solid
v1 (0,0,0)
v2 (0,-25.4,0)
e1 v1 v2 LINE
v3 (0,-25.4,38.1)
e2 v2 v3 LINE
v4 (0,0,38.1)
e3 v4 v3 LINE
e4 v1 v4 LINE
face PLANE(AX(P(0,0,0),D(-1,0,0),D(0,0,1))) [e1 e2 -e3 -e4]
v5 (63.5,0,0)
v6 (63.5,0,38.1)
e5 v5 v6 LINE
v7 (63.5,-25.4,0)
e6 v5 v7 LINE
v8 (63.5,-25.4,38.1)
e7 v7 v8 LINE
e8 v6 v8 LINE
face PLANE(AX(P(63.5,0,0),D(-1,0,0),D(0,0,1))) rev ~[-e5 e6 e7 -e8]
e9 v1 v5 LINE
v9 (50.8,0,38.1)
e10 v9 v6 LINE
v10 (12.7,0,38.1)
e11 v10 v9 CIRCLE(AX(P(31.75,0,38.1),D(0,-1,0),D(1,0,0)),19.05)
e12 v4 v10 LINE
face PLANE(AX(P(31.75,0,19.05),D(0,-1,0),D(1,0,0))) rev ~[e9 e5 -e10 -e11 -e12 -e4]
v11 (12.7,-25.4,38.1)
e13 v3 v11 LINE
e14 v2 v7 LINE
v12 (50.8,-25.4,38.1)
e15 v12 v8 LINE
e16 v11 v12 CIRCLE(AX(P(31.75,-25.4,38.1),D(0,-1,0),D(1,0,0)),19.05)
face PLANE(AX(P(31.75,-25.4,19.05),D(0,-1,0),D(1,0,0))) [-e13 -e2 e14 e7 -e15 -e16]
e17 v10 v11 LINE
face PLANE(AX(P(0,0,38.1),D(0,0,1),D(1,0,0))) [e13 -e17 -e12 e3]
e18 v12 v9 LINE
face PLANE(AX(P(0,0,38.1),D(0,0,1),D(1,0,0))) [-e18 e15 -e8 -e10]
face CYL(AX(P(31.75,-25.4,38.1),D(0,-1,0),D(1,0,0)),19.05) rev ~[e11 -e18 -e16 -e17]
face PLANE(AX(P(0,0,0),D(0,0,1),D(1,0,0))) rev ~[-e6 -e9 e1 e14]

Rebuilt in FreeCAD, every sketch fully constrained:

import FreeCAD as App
import Part
import Sketcher
from FreeCAD import Vector
Q = App.Units.Quantity


def add_polygon(sketch, points):
    """Adds a closed chain of lines whose ends are joined by coincident constraints."""
    first, n = sketch.GeometryCount, len(points)
    for a, b in zip(points, points[1:] + points[:1]):
        sketch.addGeometry(Part.LineSegment(App.Vector(*a, 0), App.Vector(*b, 0)), False)
    for i in range(n):
        sketch.addConstraint(Sketcher.Constraint("Coincident", first + i, 2, first + (i + 1) % n, 1))

doc = App.newDocument("Part")
body = doc.addObject("PartDesign::Body", "Body")

sketch1 = body.newObject("Sketcher::SketchObject", "Sketch")
sketch1.AttachmentSupport = (doc.getObject("XZ_Plane"), [""])
sketch1.MapMode = "FlatFace"
add_polygon(sketch1, [(0, 38), (0, 0), (64, 0), (64, 38)])
sketch1.addConstraint([
    Sketcher.Constraint("Vertical", 0),
    Sketcher.Constraint("Horizontal", 1),
    Sketcher.Constraint("Vertical", 2),
    Sketcher.Constraint("Horizontal", 3),
    Sketcher.Constraint("Coincident", 0, 2, -1, 1),
    Sketcher.Constraint("DistanceX", 1, 1, 1, 2, Q("2.5 in")),
    Sketcher.Constraint("DistanceY", 0, 2, 0, 1, Q("1.5 in")),
])
pad1 = body.newObject("PartDesign::Pad", "Pad")
pad1.Profile = sketch1
pad1.Length = Q("1 in")

sketch2 = body.newObject("Sketcher::SketchObject", "Sketch001")
sketch2.AttachmentSupport = (doc.getObject("XZ_Plane"), [""])
sketch2.MapMode = "FlatFace"
sketch2.AttachmentOffset = App.Placement(Vector(0, 0, 1 * 25.4), App.Rotation())
sketch2.addGeometry(Part.Circle(Vector(32, 38, 0), Vector(0, 0, 1), 19), False)
sketch2.addConstraint([
    Sketcher.Constraint("Diameter", 0, Q("1.5 in")),
    Sketcher.Constraint("DistanceY", -1, 1, 0, 3, Q("1.5 in")),
    Sketcher.Constraint("DistanceX", -1, 1, 0, 3, Q("1.25 in")),
])
pocket1 = body.newObject("PartDesign::Pocket", "Pocket")
pocket1.Profile = sketch2
pocket1.Length = Q("1 in")

doc.recompute()
